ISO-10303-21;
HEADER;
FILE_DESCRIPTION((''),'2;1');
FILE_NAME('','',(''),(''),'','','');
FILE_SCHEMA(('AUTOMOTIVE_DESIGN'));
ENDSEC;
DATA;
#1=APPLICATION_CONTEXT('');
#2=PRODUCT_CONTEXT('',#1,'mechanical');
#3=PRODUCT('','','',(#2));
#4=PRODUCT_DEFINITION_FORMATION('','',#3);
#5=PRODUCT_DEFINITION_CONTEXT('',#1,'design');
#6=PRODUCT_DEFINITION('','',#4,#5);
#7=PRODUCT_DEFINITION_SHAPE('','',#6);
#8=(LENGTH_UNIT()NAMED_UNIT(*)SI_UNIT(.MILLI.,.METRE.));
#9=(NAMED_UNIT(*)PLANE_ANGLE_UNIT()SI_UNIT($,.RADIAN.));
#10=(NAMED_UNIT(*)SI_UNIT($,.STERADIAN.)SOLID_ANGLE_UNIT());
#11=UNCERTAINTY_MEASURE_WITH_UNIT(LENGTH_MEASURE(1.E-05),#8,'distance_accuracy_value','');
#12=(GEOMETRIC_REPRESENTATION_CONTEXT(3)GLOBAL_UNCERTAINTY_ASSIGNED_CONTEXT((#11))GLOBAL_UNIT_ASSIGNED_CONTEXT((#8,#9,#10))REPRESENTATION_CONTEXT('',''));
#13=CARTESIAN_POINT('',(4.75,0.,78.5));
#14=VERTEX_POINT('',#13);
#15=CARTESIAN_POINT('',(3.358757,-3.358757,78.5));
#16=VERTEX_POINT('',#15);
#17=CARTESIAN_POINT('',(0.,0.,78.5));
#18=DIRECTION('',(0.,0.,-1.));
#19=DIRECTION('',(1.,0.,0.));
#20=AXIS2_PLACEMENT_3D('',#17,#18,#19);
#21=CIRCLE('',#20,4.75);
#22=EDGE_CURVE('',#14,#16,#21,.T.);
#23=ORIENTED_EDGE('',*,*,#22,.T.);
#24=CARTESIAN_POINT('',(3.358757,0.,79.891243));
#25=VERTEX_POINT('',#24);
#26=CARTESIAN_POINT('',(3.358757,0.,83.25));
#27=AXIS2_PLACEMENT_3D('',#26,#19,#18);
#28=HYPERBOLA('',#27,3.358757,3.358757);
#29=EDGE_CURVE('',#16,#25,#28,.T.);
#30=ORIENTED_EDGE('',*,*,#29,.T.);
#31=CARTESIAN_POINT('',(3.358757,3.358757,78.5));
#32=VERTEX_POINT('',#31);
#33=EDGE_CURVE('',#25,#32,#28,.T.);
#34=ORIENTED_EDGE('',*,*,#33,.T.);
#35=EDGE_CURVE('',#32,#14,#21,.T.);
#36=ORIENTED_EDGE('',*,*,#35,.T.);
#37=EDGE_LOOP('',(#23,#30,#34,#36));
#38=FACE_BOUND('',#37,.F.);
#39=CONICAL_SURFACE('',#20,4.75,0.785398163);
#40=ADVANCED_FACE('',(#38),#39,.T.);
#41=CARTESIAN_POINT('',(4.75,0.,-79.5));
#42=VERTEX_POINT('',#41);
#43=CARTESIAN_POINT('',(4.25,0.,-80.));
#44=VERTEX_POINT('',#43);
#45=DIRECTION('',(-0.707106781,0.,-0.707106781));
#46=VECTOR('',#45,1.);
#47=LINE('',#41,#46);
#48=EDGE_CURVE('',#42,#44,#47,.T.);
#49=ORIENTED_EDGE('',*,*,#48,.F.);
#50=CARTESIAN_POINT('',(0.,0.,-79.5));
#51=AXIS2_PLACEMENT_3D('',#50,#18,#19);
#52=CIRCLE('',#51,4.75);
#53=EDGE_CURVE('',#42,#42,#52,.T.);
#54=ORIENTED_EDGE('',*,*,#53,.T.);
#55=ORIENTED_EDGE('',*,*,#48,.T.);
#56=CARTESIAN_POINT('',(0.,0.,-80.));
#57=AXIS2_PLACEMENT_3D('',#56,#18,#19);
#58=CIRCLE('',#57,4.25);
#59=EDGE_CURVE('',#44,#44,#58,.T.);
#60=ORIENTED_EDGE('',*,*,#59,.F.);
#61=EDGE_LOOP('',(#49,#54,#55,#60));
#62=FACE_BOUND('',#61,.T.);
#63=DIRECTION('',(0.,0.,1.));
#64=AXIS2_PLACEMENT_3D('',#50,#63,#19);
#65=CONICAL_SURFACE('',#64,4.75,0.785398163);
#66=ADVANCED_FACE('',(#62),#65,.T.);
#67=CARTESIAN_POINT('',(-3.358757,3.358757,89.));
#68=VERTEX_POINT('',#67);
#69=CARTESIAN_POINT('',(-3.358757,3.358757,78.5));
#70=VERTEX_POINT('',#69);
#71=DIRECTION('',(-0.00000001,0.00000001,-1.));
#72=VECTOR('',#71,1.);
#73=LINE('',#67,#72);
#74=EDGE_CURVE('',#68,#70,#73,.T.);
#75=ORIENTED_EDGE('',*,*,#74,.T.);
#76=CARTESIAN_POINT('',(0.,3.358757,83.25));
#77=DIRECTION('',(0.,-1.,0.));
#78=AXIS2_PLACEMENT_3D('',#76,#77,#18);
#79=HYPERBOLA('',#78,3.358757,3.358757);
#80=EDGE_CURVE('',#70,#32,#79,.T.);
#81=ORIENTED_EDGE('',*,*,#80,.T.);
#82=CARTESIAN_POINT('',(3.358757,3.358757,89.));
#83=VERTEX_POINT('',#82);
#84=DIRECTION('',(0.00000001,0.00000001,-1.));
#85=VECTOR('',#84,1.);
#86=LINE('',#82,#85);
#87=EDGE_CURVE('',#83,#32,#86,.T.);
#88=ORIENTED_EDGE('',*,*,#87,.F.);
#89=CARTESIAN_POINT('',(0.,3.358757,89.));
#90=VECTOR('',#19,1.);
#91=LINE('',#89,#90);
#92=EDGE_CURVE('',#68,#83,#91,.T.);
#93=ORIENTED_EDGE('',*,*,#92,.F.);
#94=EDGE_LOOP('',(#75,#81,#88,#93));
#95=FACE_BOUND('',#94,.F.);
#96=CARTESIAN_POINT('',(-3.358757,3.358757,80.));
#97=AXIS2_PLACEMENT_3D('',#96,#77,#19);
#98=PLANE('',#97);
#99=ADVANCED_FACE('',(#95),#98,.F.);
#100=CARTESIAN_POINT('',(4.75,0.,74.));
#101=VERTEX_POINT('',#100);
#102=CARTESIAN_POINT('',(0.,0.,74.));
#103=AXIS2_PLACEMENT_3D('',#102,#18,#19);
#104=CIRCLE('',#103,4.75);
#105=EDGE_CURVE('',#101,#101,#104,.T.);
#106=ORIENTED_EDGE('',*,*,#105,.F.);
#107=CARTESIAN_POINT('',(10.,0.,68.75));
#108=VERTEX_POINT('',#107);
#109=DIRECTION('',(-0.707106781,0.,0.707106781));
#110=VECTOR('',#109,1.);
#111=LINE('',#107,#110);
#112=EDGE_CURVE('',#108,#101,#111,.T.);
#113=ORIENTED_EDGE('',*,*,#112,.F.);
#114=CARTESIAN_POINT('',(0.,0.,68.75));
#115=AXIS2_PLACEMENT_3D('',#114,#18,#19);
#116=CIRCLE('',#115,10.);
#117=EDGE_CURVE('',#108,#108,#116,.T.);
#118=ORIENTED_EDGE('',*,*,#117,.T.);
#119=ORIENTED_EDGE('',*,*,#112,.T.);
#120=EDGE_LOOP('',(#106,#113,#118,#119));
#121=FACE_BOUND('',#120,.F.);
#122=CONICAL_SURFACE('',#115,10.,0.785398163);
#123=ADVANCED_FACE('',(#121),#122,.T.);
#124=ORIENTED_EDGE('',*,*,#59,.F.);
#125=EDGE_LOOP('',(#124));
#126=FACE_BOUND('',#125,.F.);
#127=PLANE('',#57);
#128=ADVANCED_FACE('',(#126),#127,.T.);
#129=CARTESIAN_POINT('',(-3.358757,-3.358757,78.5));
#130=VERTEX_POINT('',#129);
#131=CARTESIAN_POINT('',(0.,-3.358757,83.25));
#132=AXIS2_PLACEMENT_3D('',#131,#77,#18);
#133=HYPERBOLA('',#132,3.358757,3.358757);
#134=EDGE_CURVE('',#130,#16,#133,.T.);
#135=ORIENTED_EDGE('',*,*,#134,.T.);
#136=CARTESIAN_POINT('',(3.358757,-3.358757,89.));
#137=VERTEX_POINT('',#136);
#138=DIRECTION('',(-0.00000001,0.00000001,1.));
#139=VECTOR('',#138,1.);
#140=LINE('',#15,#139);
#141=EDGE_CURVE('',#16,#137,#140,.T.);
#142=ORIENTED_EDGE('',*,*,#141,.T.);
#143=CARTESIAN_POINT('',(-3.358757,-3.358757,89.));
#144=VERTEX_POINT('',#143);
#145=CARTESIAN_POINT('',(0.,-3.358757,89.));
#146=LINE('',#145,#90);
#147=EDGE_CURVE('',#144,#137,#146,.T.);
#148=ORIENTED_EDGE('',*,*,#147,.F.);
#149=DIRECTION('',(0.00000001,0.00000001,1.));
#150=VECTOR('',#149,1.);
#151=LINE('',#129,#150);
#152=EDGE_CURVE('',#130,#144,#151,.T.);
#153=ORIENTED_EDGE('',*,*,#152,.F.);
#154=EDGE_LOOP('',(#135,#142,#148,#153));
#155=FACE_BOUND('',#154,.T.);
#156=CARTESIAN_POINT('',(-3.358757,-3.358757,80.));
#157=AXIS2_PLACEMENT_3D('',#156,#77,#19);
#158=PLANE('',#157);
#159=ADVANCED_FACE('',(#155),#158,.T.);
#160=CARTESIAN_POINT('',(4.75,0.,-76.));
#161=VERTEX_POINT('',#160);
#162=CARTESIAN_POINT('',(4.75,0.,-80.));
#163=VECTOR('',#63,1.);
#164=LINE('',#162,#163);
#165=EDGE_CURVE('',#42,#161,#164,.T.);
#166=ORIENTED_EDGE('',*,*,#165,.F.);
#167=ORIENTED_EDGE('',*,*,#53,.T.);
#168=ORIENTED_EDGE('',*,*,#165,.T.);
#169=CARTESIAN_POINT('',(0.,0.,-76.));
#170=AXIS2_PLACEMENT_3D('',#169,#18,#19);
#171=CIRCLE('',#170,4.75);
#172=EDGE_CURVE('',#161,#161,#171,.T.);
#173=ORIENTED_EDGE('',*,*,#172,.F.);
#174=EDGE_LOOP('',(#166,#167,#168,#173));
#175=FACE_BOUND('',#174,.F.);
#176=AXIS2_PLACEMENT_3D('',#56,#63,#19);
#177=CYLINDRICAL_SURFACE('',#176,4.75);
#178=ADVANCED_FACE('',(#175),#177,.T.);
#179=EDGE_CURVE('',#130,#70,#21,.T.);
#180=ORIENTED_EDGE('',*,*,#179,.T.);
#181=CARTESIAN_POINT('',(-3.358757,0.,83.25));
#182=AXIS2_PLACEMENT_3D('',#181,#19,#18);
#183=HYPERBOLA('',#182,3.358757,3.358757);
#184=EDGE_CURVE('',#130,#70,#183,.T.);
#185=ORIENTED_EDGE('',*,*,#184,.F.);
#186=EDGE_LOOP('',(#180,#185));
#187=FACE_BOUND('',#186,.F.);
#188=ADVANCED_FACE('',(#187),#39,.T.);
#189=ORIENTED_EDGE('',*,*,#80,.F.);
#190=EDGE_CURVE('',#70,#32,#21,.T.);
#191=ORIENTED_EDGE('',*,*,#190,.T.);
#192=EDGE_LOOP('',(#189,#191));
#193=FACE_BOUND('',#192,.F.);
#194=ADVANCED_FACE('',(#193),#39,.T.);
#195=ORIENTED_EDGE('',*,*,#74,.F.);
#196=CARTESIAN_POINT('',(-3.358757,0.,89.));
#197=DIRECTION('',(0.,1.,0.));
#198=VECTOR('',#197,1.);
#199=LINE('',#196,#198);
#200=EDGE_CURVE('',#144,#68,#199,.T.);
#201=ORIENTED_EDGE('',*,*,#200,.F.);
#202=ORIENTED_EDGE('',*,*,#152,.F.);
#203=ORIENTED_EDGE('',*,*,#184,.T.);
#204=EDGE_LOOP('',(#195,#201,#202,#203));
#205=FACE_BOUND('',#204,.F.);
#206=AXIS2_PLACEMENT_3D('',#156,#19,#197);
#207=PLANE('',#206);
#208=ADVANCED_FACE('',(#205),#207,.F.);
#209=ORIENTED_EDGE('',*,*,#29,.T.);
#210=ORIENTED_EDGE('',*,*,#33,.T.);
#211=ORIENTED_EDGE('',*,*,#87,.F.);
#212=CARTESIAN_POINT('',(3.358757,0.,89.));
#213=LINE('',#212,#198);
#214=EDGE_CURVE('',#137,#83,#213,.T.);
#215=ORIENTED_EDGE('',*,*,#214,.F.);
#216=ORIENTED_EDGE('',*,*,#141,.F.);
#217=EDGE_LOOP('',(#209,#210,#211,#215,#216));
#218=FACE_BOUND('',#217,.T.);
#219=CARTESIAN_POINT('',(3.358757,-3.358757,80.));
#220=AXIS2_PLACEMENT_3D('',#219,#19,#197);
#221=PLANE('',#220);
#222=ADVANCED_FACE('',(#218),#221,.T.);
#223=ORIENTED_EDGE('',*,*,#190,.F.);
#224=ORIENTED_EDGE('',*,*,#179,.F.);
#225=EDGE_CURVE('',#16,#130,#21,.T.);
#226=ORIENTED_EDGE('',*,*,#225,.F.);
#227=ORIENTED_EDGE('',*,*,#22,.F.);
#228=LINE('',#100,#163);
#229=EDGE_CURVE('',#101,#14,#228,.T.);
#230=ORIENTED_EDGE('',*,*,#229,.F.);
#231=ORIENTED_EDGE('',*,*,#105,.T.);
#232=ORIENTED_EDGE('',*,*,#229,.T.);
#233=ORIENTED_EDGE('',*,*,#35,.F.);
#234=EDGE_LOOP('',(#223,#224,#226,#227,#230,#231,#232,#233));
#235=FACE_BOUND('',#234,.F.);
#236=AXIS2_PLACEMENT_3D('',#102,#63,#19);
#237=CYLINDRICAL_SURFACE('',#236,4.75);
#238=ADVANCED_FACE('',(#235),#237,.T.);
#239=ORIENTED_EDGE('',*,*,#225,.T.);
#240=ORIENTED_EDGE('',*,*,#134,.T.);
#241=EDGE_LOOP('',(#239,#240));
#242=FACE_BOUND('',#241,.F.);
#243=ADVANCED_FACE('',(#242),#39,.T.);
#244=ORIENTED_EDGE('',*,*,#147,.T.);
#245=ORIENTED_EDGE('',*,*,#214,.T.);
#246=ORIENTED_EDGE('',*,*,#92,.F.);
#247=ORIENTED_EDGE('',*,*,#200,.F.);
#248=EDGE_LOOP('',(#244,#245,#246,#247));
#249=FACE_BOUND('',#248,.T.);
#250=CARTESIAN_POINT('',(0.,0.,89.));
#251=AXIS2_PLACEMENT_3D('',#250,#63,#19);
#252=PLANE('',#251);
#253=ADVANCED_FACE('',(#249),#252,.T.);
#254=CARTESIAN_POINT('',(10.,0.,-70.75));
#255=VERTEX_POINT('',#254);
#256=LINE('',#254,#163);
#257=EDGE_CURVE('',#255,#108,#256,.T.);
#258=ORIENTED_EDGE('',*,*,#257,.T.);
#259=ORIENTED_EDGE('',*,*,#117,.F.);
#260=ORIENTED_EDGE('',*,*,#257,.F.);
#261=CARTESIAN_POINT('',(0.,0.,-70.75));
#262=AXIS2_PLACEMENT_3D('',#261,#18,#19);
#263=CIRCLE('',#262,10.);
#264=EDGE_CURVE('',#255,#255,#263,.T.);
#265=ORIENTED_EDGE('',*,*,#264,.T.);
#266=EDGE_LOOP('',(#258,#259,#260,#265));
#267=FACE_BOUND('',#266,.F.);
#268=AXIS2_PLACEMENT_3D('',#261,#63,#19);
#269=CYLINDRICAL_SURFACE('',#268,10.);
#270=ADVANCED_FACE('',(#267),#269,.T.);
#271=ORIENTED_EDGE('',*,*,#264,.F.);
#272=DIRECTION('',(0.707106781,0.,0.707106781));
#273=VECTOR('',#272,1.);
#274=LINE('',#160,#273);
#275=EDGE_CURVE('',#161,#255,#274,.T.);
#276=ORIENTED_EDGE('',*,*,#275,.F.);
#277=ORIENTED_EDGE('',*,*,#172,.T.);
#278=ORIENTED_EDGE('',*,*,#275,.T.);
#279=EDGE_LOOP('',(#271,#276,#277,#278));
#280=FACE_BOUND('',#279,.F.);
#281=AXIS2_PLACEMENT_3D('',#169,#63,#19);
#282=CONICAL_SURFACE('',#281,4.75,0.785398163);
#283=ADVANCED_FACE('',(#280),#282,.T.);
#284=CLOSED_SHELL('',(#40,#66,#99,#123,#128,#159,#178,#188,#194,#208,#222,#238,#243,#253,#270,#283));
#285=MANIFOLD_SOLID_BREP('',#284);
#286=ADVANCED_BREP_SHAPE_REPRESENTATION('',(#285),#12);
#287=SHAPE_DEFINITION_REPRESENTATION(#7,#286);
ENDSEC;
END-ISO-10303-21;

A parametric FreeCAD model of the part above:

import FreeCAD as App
import Part
import Sketcher
from FreeCAD import Vector


def edges_at(feature, points):
    """Names of the edges that pass closest to the given points."""
    edges = feature.Shape.Edges
    near = lambda p: min(range(len(edges)), key=lambda i: edges[i].distToShape(Part.Vertex(*p))[0])
    return sorted({f"Edge{near(p) + 1}" for p in points})

doc = App.newDocument("Part")
params = doc.addObject("Spreadsheet::Sheet", "Params")
for row, (alias, value) in enumerate([
    ("sketch1_height", "160 mm"),
    ("sketch1_height2", "4 mm"),
    ("sketch1_height3", "6 mm"),
    ("sketch1_height4", "139.5 mm"),
    ("revolution_angle", "360 deg"),
    ("chamfer_size", "1.5 mm"),
    ("pad1_length", "9 mm"),
    ("pad1_length2", "3 mm"),
    ("chamfer2_size", "0.5 mm"),
], start=1):
    params.set(f"A{row}", alias)
    params.set(f"B{row}", "=" + value)
    params.setAlias(f"B{row}", alias)

body = doc.addObject("PartDesign::Body", "Body")

sketch1 = body.newObject("Sketcher::SketchObject", "Sketch")
sketch1.AttachmentSupport = (doc.getObject("XZ_Plane"), [""])
sketch1.MapMode = "FlatFace"
sketch1.addGeometry([
    Part.LineSegment(Vector(0, 80, 0), Vector(0, -80, 0)),
    Part.LineSegment(Vector(0, -80, 0), Vector(4.75, -80, 0)),
    Part.LineSegment(Vector(4.75, -80, 0), Vector(4.75, -76, 0)),
    Part.LineSegment(Vector(4.75, -76, 0), Vector(10, -70.75, 0)),
    Part.LineSegment(Vector(10, -70.75, 0), Vector(10, 68.75, 0)),
    Part.LineSegment(Vector(10, 68.75, 0), Vector(4.75, 74, 0)),
    Part.LineSegment(Vector(4.75, 74, 0), Vector(4.75, 80, 0)),
    Part.LineSegment(Vector(4.75, 80, 0), Vector(0, 80, 0)),
], False)
sketch1.addConstraint([
    Sketcher.Constraint("Coincident", 0, 2, 1, 1),
    Sketcher.Constraint("Coincident", 1, 2, 2, 1),
    Sketcher.Constraint("Coincident", 2, 2, 3, 1),
    Sketcher.Constraint("Coincident", 3, 2, 4, 1),
    Sketcher.Constraint("Coincident", 4, 2, 5, 1),
    Sketcher.Constraint("Coincident", 5, 2, 6, 1),
    Sketcher.Constraint("Coincident", 6, 2, 7, 1),
    Sketcher.Constraint("Coincident", 7, 2, 0, 1),
    Sketcher.Constraint("Vertical", 0),
    Sketcher.Constraint("Horizontal", 1),
    Sketcher.Constraint("Vertical", 2),
    Sketcher.Constraint("Vertical", 4),
    Sketcher.Constraint("Vertical", 6),
    Sketcher.Constraint("Horizontal", 7),
    Sketcher.Constraint("Symmetric", 0, 2, 7, 2, -1, 1),
    Sketcher.Constraint("Perpendicular", 3, 5),
    Sketcher.Constraint("Vertical", 2, 2, 5, 2),
    Sketcher.Constraint("Equal", 3, 5),
    Sketcher.Constraint("DistanceY", 0, 2, 0, 1, 160.0),
    Sketcher.Constraint("DistanceY", 2, 1, 2, 2, 4.0),
    Sketcher.Constraint("DistanceY", 6, 1, 6, 2, 6.0),
    Sketcher.Constraint("DistanceY", 4, 1, 4, 2, 139.5),
    Sketcher.Constraint("DistanceX", -1, 1, 3, 2, 10.0),
])
sketch1.setExpression("Constraints[18]", "Params.sketch1_height")
sketch1.setExpression("Constraints[19]", "Params.sketch1_height2")
sketch1.setExpression("Constraints[20]", "Params.sketch1_height3")
sketch1.setExpression("Constraints[21]", "Params.sketch1_height4")
revolution = body.newObject("PartDesign::Revolution", "Revolution")
revolution.Profile = sketch1
revolution.ReferenceAxis = (sketch1, ["V_Axis"])
revolution.setExpression("Angle", "Params.revolution_angle")
doc.recompute()

chamfer = body.newObject("PartDesign::Chamfer", "Chamfer")
chamfer.Base = (revolution, edges_at(revolution, [(-4.75, 0, 80)]))
chamfer.setExpression("Size", "Params.chamfer_size")

sketch2 = body.newObject("Sketcher::SketchObject", "Sketch001")
sketch2.AttachmentSupport = (doc.getObject("XY_Plane"), [""])
sketch2.MapMode = "FlatFace"
sketch2.AttachmentOffset = App.Placement(Vector(0, 0, 80), App.Rotation())
sketch2.addGeometry([
    Part.LineSegment(Vector(-3.358757, 3.358757, 0), Vector(-3.358757, -3.358757, 0)),
    Part.LineSegment(Vector(-3.358757, -3.358757, 0), Vector(3.358757, -3.358757, 0)),
    Part.LineSegment(Vector(3.358757, -3.358757, 0), Vector(3.358757, 3.358757, 0)),
    Part.LineSegment(Vector(3.358757, 3.358757, 0), Vector(-3.358757, 3.358757, 0)),
], False)
sketch2.addConstraint([
    Sketcher.Constraint("Coincident", 0, 2, 1, 1),
    Sketcher.Constraint("Coincident", 1, 2, 2, 1),
    Sketcher.Constraint("Coincident", 2, 2, 3, 1),
    Sketcher.Constraint("Coincident", 3, 2, 0, 1),
    Sketcher.Constraint("Vertical", 0),
    Sketcher.Constraint("Horizontal", 1),
    Sketcher.Constraint("Vertical", 2),
    Sketcher.Constraint("Horizontal", 3),
    Sketcher.Constraint("Symmetric", 0, 2, 2, 2, -1, 1),
    Sketcher.Constraint("Equal", 3, 0),
    Sketcher.Constraint("DistanceX", 1, 1, 1, 2, 6.717514),
])
pad1 = body.newObject("PartDesign::Pad", "Pad")
pad1.Profile = sketch2
pad1.Type = "TwoLengths"
pad1.setExpression("Length", "Params.pad1_length")
pad1.setExpression("Length2", "Params.pad1_length2")
doc.recompute()

chamfer2 = body.newObject("PartDesign::Chamfer", "Chamfer001")
chamfer2.Base = (pad1, edges_at(pad1, [(-4.75, 0, -80)]))
chamfer2.setExpression("Size", "Params.chamfer2_size")

doc.recompute()
